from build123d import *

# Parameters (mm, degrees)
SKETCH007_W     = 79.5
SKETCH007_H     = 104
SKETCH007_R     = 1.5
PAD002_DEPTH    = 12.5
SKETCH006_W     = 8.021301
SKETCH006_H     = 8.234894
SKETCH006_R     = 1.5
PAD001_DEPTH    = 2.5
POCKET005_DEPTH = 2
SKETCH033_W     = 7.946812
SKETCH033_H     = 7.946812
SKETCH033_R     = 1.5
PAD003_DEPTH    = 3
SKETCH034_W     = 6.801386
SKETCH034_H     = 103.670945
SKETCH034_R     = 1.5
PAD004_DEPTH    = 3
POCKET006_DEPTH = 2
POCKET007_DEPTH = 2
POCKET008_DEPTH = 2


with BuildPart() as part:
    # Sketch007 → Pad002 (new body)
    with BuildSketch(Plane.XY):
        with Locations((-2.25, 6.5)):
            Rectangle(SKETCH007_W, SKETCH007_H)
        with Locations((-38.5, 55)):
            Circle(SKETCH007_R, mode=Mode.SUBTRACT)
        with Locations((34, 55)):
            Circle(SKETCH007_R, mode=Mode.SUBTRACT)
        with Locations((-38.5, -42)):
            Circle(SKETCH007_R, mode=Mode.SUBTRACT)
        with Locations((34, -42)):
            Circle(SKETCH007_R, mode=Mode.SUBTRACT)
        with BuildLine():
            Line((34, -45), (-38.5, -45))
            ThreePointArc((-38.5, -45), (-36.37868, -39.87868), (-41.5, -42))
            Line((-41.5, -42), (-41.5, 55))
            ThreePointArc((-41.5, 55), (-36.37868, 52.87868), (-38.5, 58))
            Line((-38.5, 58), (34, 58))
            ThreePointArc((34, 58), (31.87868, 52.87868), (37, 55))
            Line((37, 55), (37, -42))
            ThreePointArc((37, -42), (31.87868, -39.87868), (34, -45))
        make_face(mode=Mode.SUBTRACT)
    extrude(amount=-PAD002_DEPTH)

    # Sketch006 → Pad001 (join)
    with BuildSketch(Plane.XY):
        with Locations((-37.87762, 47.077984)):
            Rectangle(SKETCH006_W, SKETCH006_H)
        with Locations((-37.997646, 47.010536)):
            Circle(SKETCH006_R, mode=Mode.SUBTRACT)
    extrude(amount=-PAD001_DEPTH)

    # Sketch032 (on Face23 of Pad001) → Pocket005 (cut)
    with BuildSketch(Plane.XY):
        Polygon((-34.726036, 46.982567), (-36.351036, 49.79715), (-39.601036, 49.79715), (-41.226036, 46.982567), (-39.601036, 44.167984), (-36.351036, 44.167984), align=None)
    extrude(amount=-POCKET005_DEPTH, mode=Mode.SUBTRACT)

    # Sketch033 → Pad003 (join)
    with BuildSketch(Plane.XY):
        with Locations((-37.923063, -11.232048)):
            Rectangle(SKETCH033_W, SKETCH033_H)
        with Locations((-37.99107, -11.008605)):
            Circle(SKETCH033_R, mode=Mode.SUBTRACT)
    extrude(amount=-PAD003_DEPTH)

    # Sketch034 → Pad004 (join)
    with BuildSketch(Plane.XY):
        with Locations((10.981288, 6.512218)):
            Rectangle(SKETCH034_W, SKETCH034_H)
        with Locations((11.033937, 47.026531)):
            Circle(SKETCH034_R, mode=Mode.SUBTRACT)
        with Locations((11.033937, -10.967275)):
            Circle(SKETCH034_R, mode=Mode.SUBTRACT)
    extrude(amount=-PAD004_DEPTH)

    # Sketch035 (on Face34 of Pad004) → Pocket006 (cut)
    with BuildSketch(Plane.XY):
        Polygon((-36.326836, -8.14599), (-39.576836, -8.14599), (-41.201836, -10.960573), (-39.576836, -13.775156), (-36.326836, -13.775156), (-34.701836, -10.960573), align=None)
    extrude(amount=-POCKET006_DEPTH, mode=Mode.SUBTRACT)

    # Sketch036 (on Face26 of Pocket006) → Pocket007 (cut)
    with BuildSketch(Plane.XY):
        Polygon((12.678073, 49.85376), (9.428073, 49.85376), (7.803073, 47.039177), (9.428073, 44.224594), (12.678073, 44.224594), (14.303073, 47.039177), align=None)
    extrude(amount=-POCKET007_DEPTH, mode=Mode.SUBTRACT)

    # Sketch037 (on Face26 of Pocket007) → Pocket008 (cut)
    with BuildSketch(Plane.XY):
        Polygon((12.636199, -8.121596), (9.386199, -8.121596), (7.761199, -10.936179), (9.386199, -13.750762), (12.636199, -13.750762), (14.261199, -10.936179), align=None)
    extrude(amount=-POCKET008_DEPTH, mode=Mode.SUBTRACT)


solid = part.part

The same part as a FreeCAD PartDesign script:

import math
import FreeCAD as App
import Part
import Sketcher
Q = App.Units.Quantity


def add_polygon(sketch, points):
    """Adds a closed chain of lines whose ends are joined by coincident constraints."""
    first, n = sketch.GeometryCount, len(points)
    for a, b in zip(points, points[1:] + points[:1]):
        sketch.addGeometry(Part.LineSegment(App.Vector(*a, 0), App.Vector(*b, 0)), False)
    for i in range(n):
        sketch.addConstraint(Sketcher.Constraint("Coincident", first + i, 2, first + (i + 1) % n, 1))

doc = App.newDocument("Part")
body = doc.addObject("PartDesign::Body", "Body")

# Sketch on XY plane
sketch1 = doc.addObject("Sketcher::SketchObject", "Sketch")
body.addObject(sketch1)
sketch1.AttachmentSupport = (doc.XY_Plane, [""])
sketch1.MapMode = "FlatFace"
add_polygon(sketch1, [(-42, 58.5), (-42, -45.5), (37.5, -45.5), (37.5, 58.5)])  # lines 0-3
sketch1.addGeometry(Part.Circle(App.Vector(-38.5, -42, 0), App.Vector(0, 0, 1), 1.5), False)  # 4
sketch1.addGeometry(Part.Circle(App.Vector(34, -42, 0), App.Vector(0, 0, 1), 1.5), False)  # 5
sketch1.addGeometry(Part.ArcOfCircle(Part.Circle(App.Vector(34, -42, 0), App.Vector(0, 0, 1), 3), math.radians(0), math.radians(270)), False)  # 6
sketch1.addGeometry(Part.LineSegment(App.Vector(34, -45, 0), App.Vector(-38.5, -45, 0)), False)  # 7
sketch1.addGeometry(Part.ArcOfCircle(Part.Circle(App.Vector(-38.5, -42, 0), App.Vector(0, 0, 1), 3), math.radians(-90), math.radians(180)), False)  # 8
sketch1.addGeometry(Part.LineSegment(App.Vector(-41.5, -42, 0), App.Vector(-41.5, 55, 0)), False)  # 9
sketch1.addGeometry(Part.ArcOfCircle(Part.Circle(App.Vector(-38.5, 55, 0), App.Vector(0, 0, 1), 3), math.radians(-180), math.radians(90)), False)  # 10
sketch1.addGeometry(Part.LineSegment(App.Vector(-38.5, 58, 0), App.Vector(34, 58, 0)), False)  # 11
sketch1.addGeometry(Part.ArcOfCircle(Part.Circle(App.Vector(34, 55, 0), App.Vector(0, 0, 1), 3), math.radians(90), math.radians(360)), False)  # 12
sketch1.addGeometry(Part.LineSegment(App.Vector(37, 55, 0), App.Vector(37, -42, 0)), False)  # 13
sketch1.addGeometry(Part.Circle(App.Vector(-38.5, 55, 0), App.Vector(0, 0, 1), 1.5), False)  # 14
sketch1.addGeometry(Part.Circle(App.Vector(34, 55, 0), App.Vector(0, 0, 1), 1.5), False)  # 15
sketch1.addConstraint(Sketcher.Constraint("Tangent", 6, 2, 7, 1))
sketch1.addConstraint(Sketcher.Constraint("Tangent", 7, 2, 8, 1))
sketch1.addConstraint(Sketcher.Constraint("Tangent", 8, 2, 9, 1))
sketch1.addConstraint(Sketcher.Constraint("Tangent", 9, 2, 10, 1))
sketch1.addConstraint(Sketcher.Constraint("Tangent", 10, 2, 11, 1))
sketch1.addConstraint(Sketcher.Constraint("Tangent", 11, 2, 12, 1))
sketch1.addConstraint(Sketcher.Constraint("Tangent", 12, 2, 13, 1))
sketch1.addConstraint(Sketcher.Constraint("Tangent", 13, 2, 6, 1))
sketch1.addConstraint(Sketcher.Constraint("Vertical", 0))
sketch1.addConstraint(Sketcher.Constraint("Horizontal", 1))
sketch1.addConstraint(Sketcher.Constraint("Vertical", 2))
sketch1.addConstraint(Sketcher.Constraint("Horizontal", 3))
sketch1.addConstraint(Sketcher.Constraint("Horizontal", 7))
sketch1.addConstraint(Sketcher.Constraint("Vertical", 9))
sketch1.addConstraint(Sketcher.Constraint("Horizontal", 11))
sketch1.addConstraint(Sketcher.Constraint("Vertical", 13))
sketch1.addConstraint(Sketcher.Constraint("Coincident", 6, 3, 5, 3))
sketch1.addConstraint(Sketcher.Constraint("Coincident", 8, 3, 4, 3))
sketch1.addConstraint(Sketcher.Constraint("Coincident", 14, 3, 10, 3))
sketch1.addConstraint(Sketcher.Constraint("Coincident", 15, 3, 12, 3))
sketch1.addConstraint(Sketcher.Constraint("Equal", 4, 5))
sketch1.addConstraint(Sketcher.Constraint("Equal", 6, 8))
sketch1.addConstraint(Sketcher.Constraint("Equal", 8, 10))
sketch1.addConstraint(Sketcher.Constraint("Equal", 10, 12))
sketch1.addConstraint(Sketcher.Constraint("Equal", 5, 14))
sketch1.addConstraint(Sketcher.Constraint("Equal", 14, 15))
sketch1.addConstraint(Sketcher.Constraint("Diameter", 4, Q("3 mm")))
sketch1.addConstraint(Sketcher.Constraint("Radius", 6, Q("3 mm")))
sketch1.addConstraint(Sketcher.Constraint("DistanceY", 0, 2, 0, 1, Q("104 mm")))
sketch1.addConstraint(Sketcher.Constraint("DistanceY", 9, 1, 9, 2, Q("97 mm")))
sketch1.addConstraint(Sketcher.Constraint("DistanceX", 1, 1, 1, 2, Q("79.5 mm")))
sketch1.addConstraint(Sketcher.Constraint("DistanceX", 7, 2, 7, 1, Q("72.5 mm")))
sketch1.addConstraint(Sketcher.Constraint("DistanceY", 4, 3, -1, 1, Q("42 mm")))
sketch1.addConstraint(Sketcher.Constraint("DistanceX", -1, 1, 5, 3, Q("34 mm")))
sketch1.addConstraint(Sketcher.Constraint("DistanceX", 0, 2, -1, 1, Q("42 mm")))
sketch1.addConstraint(Sketcher.Constraint("DistanceY", 0, 2, -1, 1, Q("45.5 mm")))
pad1 = doc.addObject("PartDesign::Pad", "Pad")
body.addObject(pad1)
pad1.Profile = sketch1
pad1.Length = 12.5
pad1.Reversed = True

# Sketch on XY plane
sketch2 = doc.addObject("Sketcher::SketchObject", "Sketch001")
body.addObject(sketch2)
sketch2.AttachmentSupport = (doc.XY_Plane, [""])
sketch2.MapMode = "FlatFace"
add_polygon(sketch2, [(-41.9, 51.2), (-41.9, 43), (-33.9, 43), (-33.9, 51.2)])  # lines 0-3
sketch2.addGeometry(Part.Circle(App.Vector(-38, 47, 0), App.Vector(0, 0, 1), 1.5), False)  # 4
sketch2.addConstraint(Sketcher.Constraint("Vertical", 0))
sketch2.addConstraint(Sketcher.Constraint("Horizontal", 1))
sketch2.addConstraint(Sketcher.Constraint("Vertical", 2))
sketch2.addConstraint(Sketcher.Constraint("Horizontal", 3))
sketch2.addConstraint(Sketcher.Constraint("Diameter", 4, Q("3 mm")))
sketch2.addConstraint(Sketcher.Constraint("DistanceY", 0, 2, 4, 3, Q("4.049999 mm")))
sketch2.addConstraint(Sketcher.Constraint("DistanceX", 1, 1, 1, 2, Q("8.021301 mm")))
sketch2.addConstraint(Sketcher.Constraint("DistanceY", 0, 2, 0, 1, Q("8.234894 mm")))
sketch2.addConstraint(Sketcher.Constraint("DistanceX", 0, 2, -1, 1, Q("41.88827 mm")))
sketch2.addConstraint(Sketcher.Constraint("DistanceY", -1, 1, 2, 2, Q("51.195431 mm")))
sketch2.addConstraint(Sketcher.Constraint("DistanceX", 4, 3, -1, 1, Q("37.997646 mm")))
pad2 = doc.addObject("PartDesign::Pad", "Pad001")
body.addObject(pad2)
pad2.Profile = sketch2
pad2.Length = 2.5
pad2.Reversed = True

# Sketch on XY plane
sketch3 = doc.addObject("Sketcher::SketchObject", "Sketch002")
body.addObject(sketch3)
sketch3.AttachmentSupport = (doc.XY_Plane, [""])
sketch3.MapMode = "FlatFace"
add_polygon(sketch3, [(-34.7, 47), (-36.4, 49.8), (-39.6, 49.8), (-41.2, 47), (-39.6, 44.2), (-36.4, 44.2)])  # lines 0-5
sketch3.addConstraint(Sketcher.Constraint("Horizontal", 1))
sketch3.addConstraint(Sketcher.Constraint("Horizontal", 4))
sketch3.addConstraint(Sketcher.Constraint("Parallel", 0, 3))
sketch3.addConstraint(Sketcher.Constraint("Parallel", 2, 5))
sketch3.addConstraint(Sketcher.Constraint("Horizontal", 2, 2, 5, 2))
sketch3.addConstraint(Sketcher.Constraint("Vertical", 1, 2, 3, 2))
sketch3.addConstraint(Sketcher.Constraint("Vertical", 0, 2, 4, 2))
sketch3.addConstraint(Sketcher.Constraint("Angle", 0, Q("119.999996 deg")))
sketch3.addConstraint(Sketcher.Constraint("DistanceX", 1, 2, 1, 1, Q("3.25 mm")))
sketch3.addConstraint(Sketcher.Constraint("DistanceX", 2, 2, 5, 2, Q("6.5 mm")))
sketch3.addConstraint(Sketcher.Constraint("DistanceY", -1, 1, 0, 2, Q("49.79715 mm")))
sketch3.addConstraint(Sketcher.Constraint("DistanceX", 0, 2, -1, 1, Q("36.351036 mm")))
pocket1 = doc.addObject("PartDesign::Pocket", "Pocket")
body.addObject(pocket1)
pocket1.Profile = sketch3
pocket1.Length = 2

# Sketch on XY plane
sketch4 = doc.addObject("Sketcher::SketchObject", "Sketch003")
body.addObject(sketch4)
sketch4.AttachmentSupport = (doc.XY_Plane, [""])
sketch4.MapMode = "FlatFace"
add_polygon(sketch4, [(-41.9, -7.3), (-41.9, -15.2), (-33.9, -15.2), (-33.9, -7.3)])  # lines 0-3
sketch4.addGeometry(Part.Circle(App.Vector(-38, -11, 0), App.Vector(0, 0, 1), 1.5), False)  # 4
sketch4.addConstraint(Sketcher.Constraint("Vertical", 0))
sketch4.addConstraint(Sketcher.Constraint("Horizontal", 1))
sketch4.addConstraint(Sketcher.Constraint("Vertical", 2))
sketch4.addConstraint(Sketcher.Constraint("Horizontal", 3))
sketch4.addConstraint(Sketcher.Constraint("Equal", 3, 0))
sketch4.addConstraint(Sketcher.Constraint("Diameter", 4, Q("3 mm")))
sketch4.addConstraint(Sketcher.Constraint("DistanceY", 0, 2, 0, 1, Q("7.946812 mm")))
sketch4.addConstraint(Sketcher.Constraint("DistanceX", 0, 2, 4, 3, Q("3.905399 mm")))
sketch4.addConstraint(Sketcher.Constraint("DistanceX", 4, 3, -1, 1, Q("37.99107 mm")))
sketch4.addConstraint(Sketcher.Constraint("DistanceY", 0, 2, 4, 3, Q("4.196849 mm")))
sketch4.addConstraint(Sketcher.Constraint("DistanceY", 4, 3, -1, 1, Q("11.008605 mm")))
pad3 = doc.addObject("PartDesign::Pad", "Pad002")
body.addObject(pad3)
pad3.Profile = sketch4
pad3.Length = 3
pad3.Reversed = True

# Sketch on XY plane
sketch5 = doc.addObject("Sketcher::SketchObject", "Sketch004")
body.addObject(sketch5)
sketch5.AttachmentSupport = (doc.XY_Plane, [""])
sketch5.MapMode = "FlatFace"
add_polygon(sketch5, [(7.6, 58.3), (7.6, -45.3), (14.4, -45.3), (14.4, 58.3)])  # lines 0-3
sketch5.addGeometry(Part.Circle(App.Vector(11, -11, 0), App.Vector(0, 0, 1), 1.5), False)  # 4
sketch5.addGeometry(Part.Circle(App.Vector(11, 47, 0), App.Vector(0, 0, 1), 1.5), False)  # 5
sketch5.addConstraint(Sketcher.Constraint("Vertical", 0))
sketch5.addConstraint(Sketcher.Constraint("Horizontal", 1))
sketch5.addConstraint(Sketcher.Constraint("Vertical", 2))
sketch5.addConstraint(Sketcher.Constraint("Horizontal", 3))
sketch5.addConstraint(Sketcher.Constraint("Equal", 4, 5))
sketch5.addConstraint(Sketcher.Constraint("Vertical", 4, 3, 5, 3))
sketch5.addConstraint(Sketcher.Constraint("Diameter", 4, Q("3 mm")))
sketch5.addConstraint(Sketcher.Constraint("DistanceX", 1, 1, 1, 2, Q("6.801386 mm")))
sketch5.addConstraint(Sketcher.Constraint("DistanceY", 0, 2, 0, 1, Q("103.670945 mm")))
sketch5.addConstraint(Sketcher.Constraint("DistanceY", -1, 1, 5, 3, Q("47.026531 mm")))
sketch5.addConstraint(Sketcher.Constraint("DistanceX", -1, 1, 1, 2, Q("14.381981 mm")))
sketch5.addConstraint(Sketcher.Constraint("DistanceY", -1, 1, 2, 2, Q("58.34769 mm")))
sketch5.addConstraint(Sketcher.Constraint("DistanceY", 0, 2, 4, 3, Q("34.355979 mm")))
sketch5.addConstraint(Sketcher.Constraint("DistanceX", -1, 1, 4, 3, Q("11.033937 mm")))
pad4 = doc.addObject("PartDesign::Pad", "Pad003")
body.addObject(pad4)
pad4.Profile = sketch5
pad4.Length = 3
pad4.Reversed = True

# Sketch on XY plane
sketch6 = doc.addObject("Sketcher::SketchObject", "Sketch005")
body.addObject(sketch6)
sketch6.AttachmentSupport = (doc.XY_Plane, [""])
sketch6.MapMode = "FlatFace"
add_polygon(sketch6, [(-36.3, -8.1), (-39.6, -8.1), (-41.2, -11), (-39.6, -13.8), (-36.3, -13.8), (-34.7, -11)])  # lines 0-5
sketch6.addConstraint(Sketcher.Constraint("Horizontal", 0))
sketch6.addConstraint(Sketcher.Constraint("Horizontal", 3))
sketch6.addConstraint(Sketcher.Constraint("Parallel", 1, 4))
sketch6.addConstraint(Sketcher.Constraint("Parallel", 2, 5))
sketch6.addConstraint(Sketcher.Constraint("Horizontal", 1, 2, 4, 2))
sketch6.addConstraint(Sketcher.Constraint("Vertical", 0, 2, 2, 2))
sketch6.addConstraint(Sketcher.Constraint("Vertical", 3, 2, 5, 2))
sketch6.addConstraint(Sketcher.Constraint("Angle", 1, Q("-119.999996 deg")))
sketch6.addConstraint(Sketcher.Constraint("DistanceX", 0, 2, 0, 1, Q("3.25 mm")))
sketch6.addConstraint(Sketcher.Constraint("DistanceX", 1, 2, 4, 2, Q("6.5 mm")))
sketch6.addConstraint(Sketcher.Constraint("DistanceY", 0, 2, -1, 1, Q("8.14599 mm")))
sketch6.addConstraint(Sketcher.Constraint("DistanceX", 0, 2, -1, 1, Q("39.576836 mm")))
pocket2 = doc.addObject("PartDesign::Pocket", "Pocket001")
body.addObject(pocket2)
pocket2.Profile = sketch6
pocket2.Length = 2

# Sketch on XY plane
sketch7 = doc.addObject("Sketcher::SketchObject", "Sketch006")
body.addObject(sketch7)
sketch7.AttachmentSupport = (doc.XY_Plane, [""])
sketch7.MapMode = "FlatFace"
add_polygon(sketch7, [(12.7, 49.9), (9.4, 49.9), (7.8, 47), (9.4, 44.2), (12.7, 44.2), (14.3, 47)])  # lines 0-5
sketch7.addConstraint(Sketcher.Constraint("Horizontal", 0))
sketch7.addConstraint(Sketcher.Constraint("Horizontal", 3))
sketch7.addConstraint(Sketcher.Constraint("Parallel", 1, 4))
sketch7.addConstraint(Sketcher.Constraint("Parallel", 2, 5))
sketch7.addConstraint(Sketcher.Constraint("Horizontal", 1, 2, 4, 2))
sketch7.addConstraint(Sketcher.Constraint("Vertical", 0, 2, 2, 2))
sketch7.addConstraint(Sketcher.Constraint("Vertical", 3, 2, 5, 2))
sketch7.addConstraint(Sketcher.Constraint("Angle", 1, Q("-119.999996 deg")))
sketch7.addConstraint(Sketcher.Constraint("DistanceX", 0, 2, 0, 1, Q("3.25 mm")))
sketch7.addConstraint(Sketcher.Constraint("DistanceX", 1, 2, 4, 2, Q("6.5 mm")))
sketch7.addConstraint(Sketcher.Constraint("DistanceY", -1, 1, 0, 2, Q("49.85376 mm")))
sketch7.addConstraint(Sketcher.Constraint("DistanceX", -1, 1, 0, 2, Q("9.428073 mm")))
pocket3 = doc.addObject("PartDesign::Pocket", "Pocket002")
body.addObject(pocket3)
pocket3.Profile = sketch7
pocket3.Length = 2

# Sketch on XY plane
sketch8 = doc.addObject("Sketcher::SketchObject", "Sketch007")
body.addObject(sketch8)
sketch8.AttachmentSupport = (doc.XY_Plane, [""])
sketch8.MapMode = "FlatFace"
add_polygon(sketch8, [(12.6, -8.1), (9.4, -8.1), (7.8, -10.9), (9.4, -13.8), (12.6, -13.8), (14.3, -10.9)])  # lines 0-5
sketch8.addConstraint(Sketcher.Constraint("Horizontal", 0))
sketch8.addConstraint(Sketcher.Constraint("Horizontal", 3))
sketch8.addConstraint(Sketcher.Constraint("Parallel", 1, 4))
sketch8.addConstraint(Sketcher.Constraint("Parallel", 2, 5))
sketch8.addConstraint(Sketcher.Constraint("Horizontal", 1, 2, 4, 2))
sketch8.addConstraint(Sketcher.Constraint("Vertical", 0, 2, 2, 2))
sketch8.addConstraint(Sketcher.Constraint("Vertical", 3, 2, 5, 2))
sketch8.addConstraint(Sketcher.Constraint("Angle", 1, Q("-119.999996 deg")))
sketch8.addConstraint(Sketcher.Constraint("DistanceX", 0, 2, 0, 1, Q("3.25 mm")))
sketch8.addConstraint(Sketcher.Constraint("DistanceX", 1, 2, 4, 2, Q("6.5 mm")))
sketch8.addConstraint(Sketcher.Constraint("DistanceX", -1, 1, 0, 2, Q("9.386199 mm")))
sketch8.addConstraint(Sketcher.Constraint("DistanceY", 1, 2, -1, 1, Q("10.936179 mm")))
pocket4 = doc.addObject("PartDesign::Pocket", "Pocket003")
body.addObject(pocket4)
pocket4.Profile = sketch8
pocket4.Length = 2

doc.recompute()
